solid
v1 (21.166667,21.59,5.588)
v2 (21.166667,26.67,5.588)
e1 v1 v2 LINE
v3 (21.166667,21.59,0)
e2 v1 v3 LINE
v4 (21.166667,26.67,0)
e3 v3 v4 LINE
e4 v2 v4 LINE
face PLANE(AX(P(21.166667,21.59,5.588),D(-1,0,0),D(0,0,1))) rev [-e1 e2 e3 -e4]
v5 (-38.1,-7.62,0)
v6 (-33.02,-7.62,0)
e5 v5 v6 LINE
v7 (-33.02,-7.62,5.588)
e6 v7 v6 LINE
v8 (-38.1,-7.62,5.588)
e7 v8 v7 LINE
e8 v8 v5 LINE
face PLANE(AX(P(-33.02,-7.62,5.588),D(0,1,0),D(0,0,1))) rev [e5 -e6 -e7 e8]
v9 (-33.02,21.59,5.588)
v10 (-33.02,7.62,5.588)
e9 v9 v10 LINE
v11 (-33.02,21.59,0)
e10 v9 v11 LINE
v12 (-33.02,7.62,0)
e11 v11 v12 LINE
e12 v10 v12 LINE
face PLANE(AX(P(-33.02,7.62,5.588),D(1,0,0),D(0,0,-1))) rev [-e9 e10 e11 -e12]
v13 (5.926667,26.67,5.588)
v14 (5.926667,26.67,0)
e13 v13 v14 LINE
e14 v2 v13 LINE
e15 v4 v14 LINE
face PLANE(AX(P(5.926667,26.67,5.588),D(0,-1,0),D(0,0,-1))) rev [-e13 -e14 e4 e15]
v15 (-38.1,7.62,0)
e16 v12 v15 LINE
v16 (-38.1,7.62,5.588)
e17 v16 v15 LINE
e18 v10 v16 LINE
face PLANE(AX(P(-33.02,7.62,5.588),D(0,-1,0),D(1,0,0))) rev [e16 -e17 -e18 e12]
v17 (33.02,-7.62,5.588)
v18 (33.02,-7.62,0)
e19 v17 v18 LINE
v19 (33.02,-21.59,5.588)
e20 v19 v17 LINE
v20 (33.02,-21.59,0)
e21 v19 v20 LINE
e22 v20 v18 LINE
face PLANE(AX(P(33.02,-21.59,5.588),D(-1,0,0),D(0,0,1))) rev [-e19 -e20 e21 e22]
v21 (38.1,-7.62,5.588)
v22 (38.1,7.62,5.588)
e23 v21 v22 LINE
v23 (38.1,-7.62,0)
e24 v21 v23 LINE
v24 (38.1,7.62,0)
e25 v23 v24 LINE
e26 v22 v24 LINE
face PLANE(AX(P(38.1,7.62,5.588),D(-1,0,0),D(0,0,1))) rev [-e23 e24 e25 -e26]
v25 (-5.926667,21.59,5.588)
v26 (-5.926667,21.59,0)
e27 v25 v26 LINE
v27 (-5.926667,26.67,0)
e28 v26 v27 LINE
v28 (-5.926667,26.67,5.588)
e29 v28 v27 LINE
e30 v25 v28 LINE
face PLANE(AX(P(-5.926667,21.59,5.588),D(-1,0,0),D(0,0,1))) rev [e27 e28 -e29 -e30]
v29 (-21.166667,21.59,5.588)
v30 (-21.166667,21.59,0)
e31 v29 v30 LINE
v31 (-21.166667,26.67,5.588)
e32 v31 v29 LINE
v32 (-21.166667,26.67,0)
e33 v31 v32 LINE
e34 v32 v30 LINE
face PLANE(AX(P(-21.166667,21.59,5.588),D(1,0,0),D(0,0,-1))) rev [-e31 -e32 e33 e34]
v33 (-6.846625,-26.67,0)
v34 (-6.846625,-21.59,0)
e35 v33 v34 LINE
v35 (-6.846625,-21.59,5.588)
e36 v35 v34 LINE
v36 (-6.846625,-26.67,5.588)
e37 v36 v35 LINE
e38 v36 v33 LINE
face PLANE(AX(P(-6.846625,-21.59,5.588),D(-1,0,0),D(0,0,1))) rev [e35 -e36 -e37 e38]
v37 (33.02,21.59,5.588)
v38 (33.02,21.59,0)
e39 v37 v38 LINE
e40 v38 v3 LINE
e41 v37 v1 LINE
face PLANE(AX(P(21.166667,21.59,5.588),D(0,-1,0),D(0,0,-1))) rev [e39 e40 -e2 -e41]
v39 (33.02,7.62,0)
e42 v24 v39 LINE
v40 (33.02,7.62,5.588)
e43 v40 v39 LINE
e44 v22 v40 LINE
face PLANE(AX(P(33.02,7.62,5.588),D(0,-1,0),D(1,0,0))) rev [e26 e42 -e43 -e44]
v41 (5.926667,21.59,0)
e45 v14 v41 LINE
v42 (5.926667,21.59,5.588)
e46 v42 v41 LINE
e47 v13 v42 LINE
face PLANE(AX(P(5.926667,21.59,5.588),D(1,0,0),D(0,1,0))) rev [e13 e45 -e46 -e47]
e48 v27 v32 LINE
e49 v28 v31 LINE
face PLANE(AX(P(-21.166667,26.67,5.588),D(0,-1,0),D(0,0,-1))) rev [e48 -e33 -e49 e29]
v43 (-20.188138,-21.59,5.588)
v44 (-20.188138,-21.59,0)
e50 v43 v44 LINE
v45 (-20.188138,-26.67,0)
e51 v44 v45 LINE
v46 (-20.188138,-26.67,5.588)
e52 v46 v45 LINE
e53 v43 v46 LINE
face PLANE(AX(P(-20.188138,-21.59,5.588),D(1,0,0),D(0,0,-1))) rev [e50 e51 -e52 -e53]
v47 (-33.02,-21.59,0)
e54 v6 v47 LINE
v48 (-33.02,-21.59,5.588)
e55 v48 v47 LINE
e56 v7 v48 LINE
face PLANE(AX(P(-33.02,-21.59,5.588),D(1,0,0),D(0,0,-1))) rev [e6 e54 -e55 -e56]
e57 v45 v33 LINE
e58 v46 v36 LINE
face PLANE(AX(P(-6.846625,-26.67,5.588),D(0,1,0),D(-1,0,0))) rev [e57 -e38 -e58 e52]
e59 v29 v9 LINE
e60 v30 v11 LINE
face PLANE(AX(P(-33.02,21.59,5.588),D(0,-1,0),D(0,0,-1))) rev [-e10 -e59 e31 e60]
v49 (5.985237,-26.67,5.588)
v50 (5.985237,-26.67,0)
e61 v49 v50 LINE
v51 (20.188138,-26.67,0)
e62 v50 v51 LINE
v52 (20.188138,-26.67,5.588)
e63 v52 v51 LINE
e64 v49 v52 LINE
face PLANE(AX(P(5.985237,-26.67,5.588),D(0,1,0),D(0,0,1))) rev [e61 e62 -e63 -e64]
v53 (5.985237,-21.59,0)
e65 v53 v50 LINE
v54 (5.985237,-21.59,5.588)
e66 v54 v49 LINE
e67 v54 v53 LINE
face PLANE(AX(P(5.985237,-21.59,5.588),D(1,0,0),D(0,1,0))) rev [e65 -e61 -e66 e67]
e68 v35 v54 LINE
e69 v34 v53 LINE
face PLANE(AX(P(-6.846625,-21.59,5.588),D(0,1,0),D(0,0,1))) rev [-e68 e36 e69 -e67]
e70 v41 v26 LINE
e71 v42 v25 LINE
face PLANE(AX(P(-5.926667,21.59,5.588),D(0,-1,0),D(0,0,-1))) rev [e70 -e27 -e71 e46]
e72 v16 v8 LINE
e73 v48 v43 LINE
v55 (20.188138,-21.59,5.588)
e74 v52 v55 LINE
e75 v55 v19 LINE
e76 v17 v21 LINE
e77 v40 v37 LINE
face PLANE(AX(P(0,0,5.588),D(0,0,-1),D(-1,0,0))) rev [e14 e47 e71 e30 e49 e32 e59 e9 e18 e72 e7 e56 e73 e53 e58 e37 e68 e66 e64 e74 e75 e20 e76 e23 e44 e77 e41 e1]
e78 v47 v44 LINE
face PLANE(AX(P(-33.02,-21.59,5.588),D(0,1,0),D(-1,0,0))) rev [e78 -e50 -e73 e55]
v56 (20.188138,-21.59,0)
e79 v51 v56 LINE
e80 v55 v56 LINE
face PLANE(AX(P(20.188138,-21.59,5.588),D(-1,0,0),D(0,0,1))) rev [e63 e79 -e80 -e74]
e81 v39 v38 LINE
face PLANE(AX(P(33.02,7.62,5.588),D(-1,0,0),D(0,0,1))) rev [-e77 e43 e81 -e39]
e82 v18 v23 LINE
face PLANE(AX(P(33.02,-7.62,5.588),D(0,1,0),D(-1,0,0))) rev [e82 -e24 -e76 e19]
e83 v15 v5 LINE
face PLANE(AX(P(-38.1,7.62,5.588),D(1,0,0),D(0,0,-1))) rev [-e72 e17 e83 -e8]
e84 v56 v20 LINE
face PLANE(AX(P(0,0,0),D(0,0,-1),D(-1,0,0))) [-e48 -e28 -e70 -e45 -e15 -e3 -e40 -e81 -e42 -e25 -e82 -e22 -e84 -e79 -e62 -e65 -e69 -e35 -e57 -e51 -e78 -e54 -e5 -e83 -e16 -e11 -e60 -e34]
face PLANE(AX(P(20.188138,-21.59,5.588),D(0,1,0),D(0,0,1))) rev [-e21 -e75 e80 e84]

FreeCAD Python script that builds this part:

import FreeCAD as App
import Part
import Sketcher

V = App.Vector
Q = App.Units.Quantity


def add_polygon(sketch, points):
    """Adds a closed chain of lines whose ends are joined by coincident constraints."""
    first, n = sketch.GeometryCount, len(points)
    for a, b in zip(points, points[1:] + points[:1]):
        sketch.addGeometry(Part.LineSegment(App.Vector(*a, 0), App.Vector(*b, 0)), False)
    for i in range(n):
        sketch.addConstraint(Sketcher.Constraint("Coincident", first + i, 2, first + (i + 1) % n, 1))

doc = App.newDocument("Part")
body = doc.addObject("PartDesign::Body", "Body")

# Sketch on XY plane
sketch1 = body.newObject("Sketcher::SketchObject", "Sketch")
sketch1.AttachmentSupport = (doc.getObject("XY_Plane"), [""])
sketch1.MapMode = "FlatFace"
add_polygon(sketch1, [(6, 22), (-6, 22), (-6, 27), (-21, 27), (-21, 22), (-33, 22), (-33, 8), (-38, 8), (-38, -8), (-33, -8), (-33, -22), (-20, -22), (-20, -27), (-7, -27), (-7, -22), (6, -22), (6, -27), (20, -27), (20, -22), (33, -22), (33, -8), (38, -8), (38, 8), (33, 8), (33, 22), (21, 22), (21, 27), (6, 27)])  # lines 0-27
sketch1.addConstraint(Sketcher.Constraint("Horizontal", 0))
sketch1.addConstraint(Sketcher.Constraint("Vertical", 1))
sketch1.addConstraint(Sketcher.Constraint("Horizontal", 2))
sketch1.addConstraint(Sketcher.Constraint("Vertical", 3))
sketch1.addConstraint(Sketcher.Constraint("Horizontal", 4))
sketch1.addConstraint(Sketcher.Constraint("Vertical", 5))
sketch1.addConstraint(Sketcher.Constraint("Horizontal", 6))
sketch1.addConstraint(Sketcher.Constraint("Vertical", 7))
sketch1.addConstraint(Sketcher.Constraint("Horizontal", 8))
sketch1.addConstraint(Sketcher.Constraint("Vertical", 9))
sketch1.addConstraint(Sketcher.Constraint("Horizontal", 10))
sketch1.addConstraint(Sketcher.Constraint("Vertical", 11))
sketch1.addConstraint(Sketcher.Constraint("Horizontal", 12))
sketch1.addConstraint(Sketcher.Constraint("Vertical", 13))
sketch1.addConstraint(Sketcher.Constraint("Horizontal", 14))
sketch1.addConstraint(Sketcher.Constraint("Vertical", 15))
sketch1.addConstraint(Sketcher.Constraint("Horizontal", 16))
sketch1.addConstraint(Sketcher.Constraint("Vertical", 17))
sketch1.addConstraint(Sketcher.Constraint("Horizontal", 18))
sketch1.addConstraint(Sketcher.Constraint("Vertical", 19))
sketch1.addConstraint(Sketcher.Constraint("Horizontal", 20))
sketch1.addConstraint(Sketcher.Constraint("Vertical", 21))
sketch1.addConstraint(Sketcher.Constraint("Horizontal", 22))
sketch1.addConstraint(Sketcher.Constraint("Vertical", 23))
sketch1.addConstraint(Sketcher.Constraint("Horizontal", 24))
sketch1.addConstraint(Sketcher.Constraint("Vertical", 25))
sketch1.addConstraint(Sketcher.Constraint("Horizontal", 26))
sketch1.addConstraint(Sketcher.Constraint("Vertical", 27))
sketch1.addConstraint(Sketcher.Constraint("Symmetric", 4, 2, 18, 2, -1, 1))
sketch1.addConstraint(Sketcher.Constraint("Symmetric", 6, 2, 20, 2, -1, 1))
sketch1.addConstraint(Sketcher.Constraint("Symmetric", 8, 2, 22, 2, -1, 1))
sketch1.addConstraint(Sketcher.Constraint("Symmetric", 11, 2, 16, 2, -2))
sketch1.addConstraint(Sketcher.Constraint("Symmetric", 9, 2, 18, 2, -2))
sketch1.addConstraint(Sketcher.Constraint("Symmetric", 3, 2, 24, 2, -2))
sketch1.addConstraint(Sketcher.Constraint("Symmetric", 1, 2, 26, 2, -2))
sketch1.addConstraint(Sketcher.Constraint("Horizontal", 0, 2, 3, 2))
sketch1.addConstraint(Sketcher.Constraint("Horizontal", 10, 2, 13, 2))
sketch1.addConstraint(Sketcher.Constraint("Horizontal", 8, 2, 19, 2))
sketch1.addConstraint(Sketcher.Constraint("Equal", 0, 4))
sketch1.addConstraint(Sketcher.Constraint("Equal", 10, 14))
sketch1.addConstraint(Sketcher.Constraint("Equal", 22, 1))
sketch1.addConstraint(Sketcher.Constraint("Equal", 26, 7))
sketch1.addConstraint(Sketcher.Constraint("Equal", 3, 11))
sketch1.addConstraint(Sketcher.Constraint("DistanceX", 2, 2, 2, 1, Q("0.6 in")))
sketch1.addConstraint(Sketcher.Constraint("DistanceX", 6, 2, 6, 1, Q("0.2 in")))
sketch1.addConstraint(Sketcher.Constraint("DistanceY", 5, 2, 5, 1, Q("0.55 in")))
sketch1.addConstraint(Sketcher.Constraint("DistanceX", 4, 2, -1, 1, Q("1.3 in")))
sketch1.addConstraint(Sketcher.Constraint("DistanceX", 16, 1, 16, 2, Q("14.202901 mm")))
sketch1.addConstraint(Sketcher.Constraint("DistanceX", 10, 1, 10, 2, Q("12.831862 mm")))
pad1 = body.newObject("PartDesign::Pad", "Pad")
pad1.Profile = sketch1
pad1.Length = Q("0.22 in")

doc.recompute()
